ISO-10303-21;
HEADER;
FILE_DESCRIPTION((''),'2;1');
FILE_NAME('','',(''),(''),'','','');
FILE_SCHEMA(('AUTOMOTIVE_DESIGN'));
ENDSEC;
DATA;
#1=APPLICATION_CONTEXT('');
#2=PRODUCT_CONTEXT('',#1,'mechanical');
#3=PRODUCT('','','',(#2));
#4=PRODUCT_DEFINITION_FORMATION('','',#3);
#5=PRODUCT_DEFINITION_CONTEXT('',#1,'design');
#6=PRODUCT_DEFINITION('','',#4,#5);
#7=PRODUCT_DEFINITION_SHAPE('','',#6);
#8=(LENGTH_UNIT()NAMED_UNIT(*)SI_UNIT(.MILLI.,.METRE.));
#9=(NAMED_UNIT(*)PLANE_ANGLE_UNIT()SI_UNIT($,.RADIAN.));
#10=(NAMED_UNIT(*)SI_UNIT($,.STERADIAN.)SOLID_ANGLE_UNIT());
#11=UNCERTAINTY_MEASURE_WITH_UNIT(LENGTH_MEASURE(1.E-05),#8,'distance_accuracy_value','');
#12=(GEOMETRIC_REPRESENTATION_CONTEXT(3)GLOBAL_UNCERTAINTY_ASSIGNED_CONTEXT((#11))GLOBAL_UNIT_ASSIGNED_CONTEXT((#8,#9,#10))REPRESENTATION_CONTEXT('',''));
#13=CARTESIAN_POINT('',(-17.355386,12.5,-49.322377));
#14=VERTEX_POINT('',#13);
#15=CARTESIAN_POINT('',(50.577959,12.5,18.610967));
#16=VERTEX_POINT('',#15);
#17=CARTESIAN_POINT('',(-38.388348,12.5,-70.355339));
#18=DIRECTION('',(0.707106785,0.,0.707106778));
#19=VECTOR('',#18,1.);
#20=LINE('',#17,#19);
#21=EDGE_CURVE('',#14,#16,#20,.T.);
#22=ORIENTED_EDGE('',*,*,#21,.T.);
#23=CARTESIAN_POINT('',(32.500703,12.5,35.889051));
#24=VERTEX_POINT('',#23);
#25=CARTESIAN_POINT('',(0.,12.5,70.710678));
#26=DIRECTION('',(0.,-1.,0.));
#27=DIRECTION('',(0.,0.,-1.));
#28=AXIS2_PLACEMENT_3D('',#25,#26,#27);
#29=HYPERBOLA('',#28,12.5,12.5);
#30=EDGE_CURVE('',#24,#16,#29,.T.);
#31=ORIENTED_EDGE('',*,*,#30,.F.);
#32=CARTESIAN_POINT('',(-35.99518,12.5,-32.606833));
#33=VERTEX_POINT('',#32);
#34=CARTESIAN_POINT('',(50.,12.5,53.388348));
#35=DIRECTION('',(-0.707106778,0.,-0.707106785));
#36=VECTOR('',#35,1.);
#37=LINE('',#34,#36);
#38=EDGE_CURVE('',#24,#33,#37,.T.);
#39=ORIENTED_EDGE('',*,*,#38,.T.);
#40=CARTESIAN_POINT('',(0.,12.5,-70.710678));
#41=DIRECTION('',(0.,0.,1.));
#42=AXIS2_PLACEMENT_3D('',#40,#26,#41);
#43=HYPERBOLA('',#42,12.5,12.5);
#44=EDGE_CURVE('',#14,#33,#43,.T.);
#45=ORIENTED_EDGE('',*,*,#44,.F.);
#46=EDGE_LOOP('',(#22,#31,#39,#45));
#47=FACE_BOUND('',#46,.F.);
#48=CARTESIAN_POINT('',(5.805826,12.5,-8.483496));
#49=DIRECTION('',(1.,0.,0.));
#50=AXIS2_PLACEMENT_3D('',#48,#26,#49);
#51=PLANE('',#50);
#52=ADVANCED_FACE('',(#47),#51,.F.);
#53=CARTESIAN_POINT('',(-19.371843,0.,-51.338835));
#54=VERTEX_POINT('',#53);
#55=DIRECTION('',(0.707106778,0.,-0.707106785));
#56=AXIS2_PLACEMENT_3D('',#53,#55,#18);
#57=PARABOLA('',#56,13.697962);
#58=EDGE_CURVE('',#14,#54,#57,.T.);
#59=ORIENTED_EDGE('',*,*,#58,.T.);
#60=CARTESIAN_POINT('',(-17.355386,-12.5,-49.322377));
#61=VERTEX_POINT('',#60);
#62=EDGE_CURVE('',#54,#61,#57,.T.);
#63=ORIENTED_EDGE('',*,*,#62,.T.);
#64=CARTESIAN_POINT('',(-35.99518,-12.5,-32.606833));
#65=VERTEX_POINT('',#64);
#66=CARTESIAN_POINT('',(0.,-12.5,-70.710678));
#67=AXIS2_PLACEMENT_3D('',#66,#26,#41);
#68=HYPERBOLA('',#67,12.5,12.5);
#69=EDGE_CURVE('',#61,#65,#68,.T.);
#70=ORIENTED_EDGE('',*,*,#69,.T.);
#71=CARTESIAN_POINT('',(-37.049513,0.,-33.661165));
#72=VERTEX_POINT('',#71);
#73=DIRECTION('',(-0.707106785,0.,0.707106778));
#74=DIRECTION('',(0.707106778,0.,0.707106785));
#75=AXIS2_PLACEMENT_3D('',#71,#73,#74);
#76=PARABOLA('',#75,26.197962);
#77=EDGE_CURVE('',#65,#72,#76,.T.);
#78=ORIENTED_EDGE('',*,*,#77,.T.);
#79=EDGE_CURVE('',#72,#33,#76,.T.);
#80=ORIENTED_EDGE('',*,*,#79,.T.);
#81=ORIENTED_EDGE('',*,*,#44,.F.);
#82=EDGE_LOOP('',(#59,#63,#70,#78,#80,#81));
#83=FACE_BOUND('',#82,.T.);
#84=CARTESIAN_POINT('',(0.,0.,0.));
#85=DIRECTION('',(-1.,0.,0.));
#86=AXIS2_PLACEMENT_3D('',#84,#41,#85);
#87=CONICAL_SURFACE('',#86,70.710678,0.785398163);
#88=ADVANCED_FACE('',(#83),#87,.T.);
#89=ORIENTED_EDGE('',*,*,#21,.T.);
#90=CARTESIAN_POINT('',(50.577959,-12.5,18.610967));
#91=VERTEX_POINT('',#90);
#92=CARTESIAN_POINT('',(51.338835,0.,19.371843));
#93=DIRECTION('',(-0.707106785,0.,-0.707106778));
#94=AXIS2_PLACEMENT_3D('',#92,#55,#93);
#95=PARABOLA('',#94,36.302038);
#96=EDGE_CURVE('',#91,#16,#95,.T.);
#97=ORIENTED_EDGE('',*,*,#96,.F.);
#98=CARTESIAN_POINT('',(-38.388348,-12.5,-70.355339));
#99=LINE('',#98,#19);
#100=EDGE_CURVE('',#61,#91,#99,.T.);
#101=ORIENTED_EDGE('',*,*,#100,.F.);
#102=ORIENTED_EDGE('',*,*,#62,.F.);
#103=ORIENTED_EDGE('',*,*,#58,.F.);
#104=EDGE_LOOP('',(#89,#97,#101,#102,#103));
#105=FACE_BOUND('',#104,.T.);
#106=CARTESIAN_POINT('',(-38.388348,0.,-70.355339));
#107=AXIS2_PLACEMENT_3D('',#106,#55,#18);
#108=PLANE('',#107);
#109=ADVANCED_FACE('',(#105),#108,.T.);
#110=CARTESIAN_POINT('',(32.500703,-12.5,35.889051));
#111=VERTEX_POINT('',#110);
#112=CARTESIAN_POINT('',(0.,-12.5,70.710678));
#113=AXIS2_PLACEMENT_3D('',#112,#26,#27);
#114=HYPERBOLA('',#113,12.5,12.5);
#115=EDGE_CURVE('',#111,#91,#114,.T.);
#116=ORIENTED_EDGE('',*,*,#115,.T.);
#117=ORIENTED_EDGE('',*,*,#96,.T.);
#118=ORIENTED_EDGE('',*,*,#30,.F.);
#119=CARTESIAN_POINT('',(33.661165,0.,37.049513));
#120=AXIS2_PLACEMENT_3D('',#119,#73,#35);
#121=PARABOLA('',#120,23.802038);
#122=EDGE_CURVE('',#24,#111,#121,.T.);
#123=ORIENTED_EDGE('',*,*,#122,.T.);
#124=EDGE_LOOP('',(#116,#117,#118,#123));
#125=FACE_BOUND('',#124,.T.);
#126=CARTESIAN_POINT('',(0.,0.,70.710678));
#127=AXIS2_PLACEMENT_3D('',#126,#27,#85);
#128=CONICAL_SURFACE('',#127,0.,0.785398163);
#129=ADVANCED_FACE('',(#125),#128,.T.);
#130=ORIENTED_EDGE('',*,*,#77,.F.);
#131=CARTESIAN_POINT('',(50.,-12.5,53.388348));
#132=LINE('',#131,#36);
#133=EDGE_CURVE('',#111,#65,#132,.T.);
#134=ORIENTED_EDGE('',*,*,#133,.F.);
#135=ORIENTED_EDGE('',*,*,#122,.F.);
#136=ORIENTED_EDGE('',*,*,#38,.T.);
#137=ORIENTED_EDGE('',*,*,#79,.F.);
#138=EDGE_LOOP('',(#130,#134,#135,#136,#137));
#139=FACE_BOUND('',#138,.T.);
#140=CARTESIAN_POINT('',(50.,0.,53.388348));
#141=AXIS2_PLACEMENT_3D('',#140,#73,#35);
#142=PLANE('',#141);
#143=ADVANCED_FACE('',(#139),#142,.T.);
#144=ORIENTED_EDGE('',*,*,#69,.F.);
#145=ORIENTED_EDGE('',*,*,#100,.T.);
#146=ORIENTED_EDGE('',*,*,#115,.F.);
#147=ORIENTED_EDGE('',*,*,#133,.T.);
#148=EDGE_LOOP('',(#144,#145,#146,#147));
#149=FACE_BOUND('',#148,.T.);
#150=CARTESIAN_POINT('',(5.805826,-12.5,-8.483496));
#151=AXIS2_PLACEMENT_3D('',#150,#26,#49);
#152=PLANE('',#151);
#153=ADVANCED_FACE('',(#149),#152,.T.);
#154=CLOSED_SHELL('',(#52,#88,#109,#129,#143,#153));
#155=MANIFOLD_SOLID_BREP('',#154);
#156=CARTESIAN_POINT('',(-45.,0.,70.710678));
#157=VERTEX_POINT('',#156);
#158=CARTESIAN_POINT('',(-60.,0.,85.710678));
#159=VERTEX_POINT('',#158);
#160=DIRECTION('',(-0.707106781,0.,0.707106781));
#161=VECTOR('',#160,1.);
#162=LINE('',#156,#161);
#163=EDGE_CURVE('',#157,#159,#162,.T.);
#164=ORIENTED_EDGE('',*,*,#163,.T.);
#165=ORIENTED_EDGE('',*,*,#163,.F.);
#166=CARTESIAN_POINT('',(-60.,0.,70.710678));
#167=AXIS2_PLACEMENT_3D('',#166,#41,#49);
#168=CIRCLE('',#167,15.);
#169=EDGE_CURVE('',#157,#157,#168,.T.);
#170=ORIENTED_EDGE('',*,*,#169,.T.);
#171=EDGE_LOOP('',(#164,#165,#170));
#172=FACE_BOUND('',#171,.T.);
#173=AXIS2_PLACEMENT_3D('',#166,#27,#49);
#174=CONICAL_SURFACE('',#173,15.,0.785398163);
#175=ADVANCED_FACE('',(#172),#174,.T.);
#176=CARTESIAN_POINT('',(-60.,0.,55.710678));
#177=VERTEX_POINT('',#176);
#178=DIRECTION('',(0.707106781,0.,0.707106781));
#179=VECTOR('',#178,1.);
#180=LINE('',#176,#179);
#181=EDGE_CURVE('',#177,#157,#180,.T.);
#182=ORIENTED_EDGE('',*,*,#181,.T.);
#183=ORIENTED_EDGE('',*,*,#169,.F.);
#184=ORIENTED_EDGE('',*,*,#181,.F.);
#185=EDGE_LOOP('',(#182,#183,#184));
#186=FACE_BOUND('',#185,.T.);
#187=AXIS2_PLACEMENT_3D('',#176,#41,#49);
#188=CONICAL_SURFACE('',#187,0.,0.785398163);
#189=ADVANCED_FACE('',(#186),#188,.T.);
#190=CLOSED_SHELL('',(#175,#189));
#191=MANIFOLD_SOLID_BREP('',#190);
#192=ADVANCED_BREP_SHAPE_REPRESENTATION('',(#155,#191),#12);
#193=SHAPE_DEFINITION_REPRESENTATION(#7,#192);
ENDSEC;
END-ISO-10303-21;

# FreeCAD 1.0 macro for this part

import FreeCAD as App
import Part
import Sketcher
Q = App.Units.Quantity


def add_polygon(sketch, points):
    """Adds a closed chain of lines whose ends are joined by coincident constraints."""
    first, n = sketch.GeometryCount, len(points)
    for a, b in zip(points, points[1:] + points[:1]):
        sketch.addGeometry(Part.LineSegment(App.Vector(*a, 0), App.Vector(*b, 0)), False)
    for i in range(n):
        sketch.addConstraint(Sketcher.Constraint("Coincident", first + i, 2, first + (i + 1) % n, 1))

doc = App.newDocument("Part")
params = doc.addObject("Spreadsheet::Sheet", "Params")
for row, (alias, value) in enumerate([
    ("sketch1_length", "100 mm"),
    ("revolution_angle", "360 deg"),
    ("sketch2_height", "30 mm"),
    ("revolution2_angle", "360 deg"),
    ("sketch3_length", "25.000001 mm"),
    ("sketch3_length2", "150 mm"),
    ("pad1_length", "25 mm"),
], start=1):
    params.set(f"A{row}", alias)
    params.set(f"B{row}", "=" + value)
    params.setAlias(f"B{row}", alias)

body = doc.addObject("PartDesign::Body", "Body")

# Sketch on XZ plane
sketch1 = body.newObject("Sketcher::SketchObject", "Sketch")
sketch1.AttachmentSupport = (doc.getObject("XZ_Plane"), [""])
sketch1.MapMode = "FlatFace"
add_polygon(sketch1, [(0, -71), (0, 71), (-71, 0)])  # lines 0-2
sketch1.addConstraint([
    Sketcher.Constraint("Vertical", 0),
    Sketcher.Constraint("Symmetric", 0, 2, 2, 2, -1, 1),
    Sketcher.Constraint("PointOnObject", 1, 2, -1),
    Sketcher.Constraint("Perpendicular", 1, 2),
    Sketcher.Constraint("Distance", 1, Q("100 mm")),
])
sketch1.setExpression("Constraints[7]", "Params.sketch1_length")
revolution = body.newObject("PartDesign::Revolution", "Revolution")
revolution.Profile = sketch1
revolution.ReferenceAxis = (sketch1, ["V_Axis"])
revolution.setExpression("Angle", "Params.revolution_angle")
body2 = doc.addObject("PartDesign::Body", "Body001")

# Sketch on XZ plane
sketch2 = body2.newObject("Sketcher::SketchObject", "Sketch001")
sketch2.AttachmentSupport = (doc.getObject("XZ_Plane001"), [""])
sketch2.MapMode = "FlatFace"
add_polygon(sketch2, [(-60, 56), (-45, 71), (-60, 86)])  # lines 0-2
sketch2.addGeometry(Part.LineSegment(App.Vector(-60, 56, 0), App.Vector(-60, 86, 0)), True)  # axis
sketch2.addConstraint([
    Sketcher.Constraint("Vertical", 2),
    Sketcher.Constraint("Vertical", 3),
    Sketcher.Constraint("Coincident", 3, 1, 2, 2),
    Sketcher.Constraint("Perpendicular", 0, 1),
    Sketcher.Constraint("Equal", 2, 3),
    Sketcher.Constraint("Equal", 0, 1),
    Sketcher.Constraint("DistanceY", 2, 2, 2, 1, Q("30 mm")),
    Sketcher.Constraint("DistanceX", 0, 2, -1, 1, Q("45 mm")),
    Sketcher.Constraint("DistanceY", -1, 1, 0, 2, Q("70.710678 mm")),
])
sketch2.setExpression("Constraints[9]", "Params.sketch2_height")
revolution2 = body2.newObject("PartDesign::Revolution", "Revolution001")
revolution2.Profile = sketch2
revolution2.ReferenceAxis = (sketch2, ["Axis0"])
revolution2.setExpression("Angle", "Params.revolution2_angle")
body3 = doc.addObject("PartDesign::Body", "Body002")

# Sketch on XZ plane
sketch3 = body3.newObject("Sketcher::SketchObject", "Sketch002")
sketch3.AttachmentSupport = (doc.getObject("XZ_Plane002"), [""])
sketch3.MapMode = "FlatFace"
add_polygon(sketch3, [(68, 36), (50, 53), (-56, -53), (-38, -70)])  # lines 0-3
sketch3.addConstraint([
    Sketcher.Constraint("Perpendicular", 0, 1),
    Sketcher.Constraint("Perpendicular", 1, 2),
    Sketcher.Constraint("Perpendicular", 2, 3),
    Sketcher.Constraint("Angle", 0, Q("135 deg")),
    Sketcher.Constraint("Distance", 0, Q("25.000001 mm")),
    Sketcher.Constraint("Distance", 1, Q("150 mm")),
    Sketcher.Constraint("DistanceX", -1, 1, 0, 2, Q("50 mm")),
    Sketcher.Constraint("DistanceY", 1, 2, -1, 1, Q("52.67767 mm")),
])
sketch3.setExpression("Constraints[8]", "Params.sketch3_length")
sketch3.setExpression("Constraints[9]", "Params.sketch3_length2")
pad1 = body3.newObject("PartDesign::Pad", "Pad")
pad1.Profile = sketch3
pad1.setExpression("Length", "Params.pad1_length")
pad1.Midplane = True
doc.recompute()

boolean = body3.newObject("PartDesign::Boolean", "Boolean")
boolean.Type = "Common"
boolean.addObjects([body])

doc.recompute()
